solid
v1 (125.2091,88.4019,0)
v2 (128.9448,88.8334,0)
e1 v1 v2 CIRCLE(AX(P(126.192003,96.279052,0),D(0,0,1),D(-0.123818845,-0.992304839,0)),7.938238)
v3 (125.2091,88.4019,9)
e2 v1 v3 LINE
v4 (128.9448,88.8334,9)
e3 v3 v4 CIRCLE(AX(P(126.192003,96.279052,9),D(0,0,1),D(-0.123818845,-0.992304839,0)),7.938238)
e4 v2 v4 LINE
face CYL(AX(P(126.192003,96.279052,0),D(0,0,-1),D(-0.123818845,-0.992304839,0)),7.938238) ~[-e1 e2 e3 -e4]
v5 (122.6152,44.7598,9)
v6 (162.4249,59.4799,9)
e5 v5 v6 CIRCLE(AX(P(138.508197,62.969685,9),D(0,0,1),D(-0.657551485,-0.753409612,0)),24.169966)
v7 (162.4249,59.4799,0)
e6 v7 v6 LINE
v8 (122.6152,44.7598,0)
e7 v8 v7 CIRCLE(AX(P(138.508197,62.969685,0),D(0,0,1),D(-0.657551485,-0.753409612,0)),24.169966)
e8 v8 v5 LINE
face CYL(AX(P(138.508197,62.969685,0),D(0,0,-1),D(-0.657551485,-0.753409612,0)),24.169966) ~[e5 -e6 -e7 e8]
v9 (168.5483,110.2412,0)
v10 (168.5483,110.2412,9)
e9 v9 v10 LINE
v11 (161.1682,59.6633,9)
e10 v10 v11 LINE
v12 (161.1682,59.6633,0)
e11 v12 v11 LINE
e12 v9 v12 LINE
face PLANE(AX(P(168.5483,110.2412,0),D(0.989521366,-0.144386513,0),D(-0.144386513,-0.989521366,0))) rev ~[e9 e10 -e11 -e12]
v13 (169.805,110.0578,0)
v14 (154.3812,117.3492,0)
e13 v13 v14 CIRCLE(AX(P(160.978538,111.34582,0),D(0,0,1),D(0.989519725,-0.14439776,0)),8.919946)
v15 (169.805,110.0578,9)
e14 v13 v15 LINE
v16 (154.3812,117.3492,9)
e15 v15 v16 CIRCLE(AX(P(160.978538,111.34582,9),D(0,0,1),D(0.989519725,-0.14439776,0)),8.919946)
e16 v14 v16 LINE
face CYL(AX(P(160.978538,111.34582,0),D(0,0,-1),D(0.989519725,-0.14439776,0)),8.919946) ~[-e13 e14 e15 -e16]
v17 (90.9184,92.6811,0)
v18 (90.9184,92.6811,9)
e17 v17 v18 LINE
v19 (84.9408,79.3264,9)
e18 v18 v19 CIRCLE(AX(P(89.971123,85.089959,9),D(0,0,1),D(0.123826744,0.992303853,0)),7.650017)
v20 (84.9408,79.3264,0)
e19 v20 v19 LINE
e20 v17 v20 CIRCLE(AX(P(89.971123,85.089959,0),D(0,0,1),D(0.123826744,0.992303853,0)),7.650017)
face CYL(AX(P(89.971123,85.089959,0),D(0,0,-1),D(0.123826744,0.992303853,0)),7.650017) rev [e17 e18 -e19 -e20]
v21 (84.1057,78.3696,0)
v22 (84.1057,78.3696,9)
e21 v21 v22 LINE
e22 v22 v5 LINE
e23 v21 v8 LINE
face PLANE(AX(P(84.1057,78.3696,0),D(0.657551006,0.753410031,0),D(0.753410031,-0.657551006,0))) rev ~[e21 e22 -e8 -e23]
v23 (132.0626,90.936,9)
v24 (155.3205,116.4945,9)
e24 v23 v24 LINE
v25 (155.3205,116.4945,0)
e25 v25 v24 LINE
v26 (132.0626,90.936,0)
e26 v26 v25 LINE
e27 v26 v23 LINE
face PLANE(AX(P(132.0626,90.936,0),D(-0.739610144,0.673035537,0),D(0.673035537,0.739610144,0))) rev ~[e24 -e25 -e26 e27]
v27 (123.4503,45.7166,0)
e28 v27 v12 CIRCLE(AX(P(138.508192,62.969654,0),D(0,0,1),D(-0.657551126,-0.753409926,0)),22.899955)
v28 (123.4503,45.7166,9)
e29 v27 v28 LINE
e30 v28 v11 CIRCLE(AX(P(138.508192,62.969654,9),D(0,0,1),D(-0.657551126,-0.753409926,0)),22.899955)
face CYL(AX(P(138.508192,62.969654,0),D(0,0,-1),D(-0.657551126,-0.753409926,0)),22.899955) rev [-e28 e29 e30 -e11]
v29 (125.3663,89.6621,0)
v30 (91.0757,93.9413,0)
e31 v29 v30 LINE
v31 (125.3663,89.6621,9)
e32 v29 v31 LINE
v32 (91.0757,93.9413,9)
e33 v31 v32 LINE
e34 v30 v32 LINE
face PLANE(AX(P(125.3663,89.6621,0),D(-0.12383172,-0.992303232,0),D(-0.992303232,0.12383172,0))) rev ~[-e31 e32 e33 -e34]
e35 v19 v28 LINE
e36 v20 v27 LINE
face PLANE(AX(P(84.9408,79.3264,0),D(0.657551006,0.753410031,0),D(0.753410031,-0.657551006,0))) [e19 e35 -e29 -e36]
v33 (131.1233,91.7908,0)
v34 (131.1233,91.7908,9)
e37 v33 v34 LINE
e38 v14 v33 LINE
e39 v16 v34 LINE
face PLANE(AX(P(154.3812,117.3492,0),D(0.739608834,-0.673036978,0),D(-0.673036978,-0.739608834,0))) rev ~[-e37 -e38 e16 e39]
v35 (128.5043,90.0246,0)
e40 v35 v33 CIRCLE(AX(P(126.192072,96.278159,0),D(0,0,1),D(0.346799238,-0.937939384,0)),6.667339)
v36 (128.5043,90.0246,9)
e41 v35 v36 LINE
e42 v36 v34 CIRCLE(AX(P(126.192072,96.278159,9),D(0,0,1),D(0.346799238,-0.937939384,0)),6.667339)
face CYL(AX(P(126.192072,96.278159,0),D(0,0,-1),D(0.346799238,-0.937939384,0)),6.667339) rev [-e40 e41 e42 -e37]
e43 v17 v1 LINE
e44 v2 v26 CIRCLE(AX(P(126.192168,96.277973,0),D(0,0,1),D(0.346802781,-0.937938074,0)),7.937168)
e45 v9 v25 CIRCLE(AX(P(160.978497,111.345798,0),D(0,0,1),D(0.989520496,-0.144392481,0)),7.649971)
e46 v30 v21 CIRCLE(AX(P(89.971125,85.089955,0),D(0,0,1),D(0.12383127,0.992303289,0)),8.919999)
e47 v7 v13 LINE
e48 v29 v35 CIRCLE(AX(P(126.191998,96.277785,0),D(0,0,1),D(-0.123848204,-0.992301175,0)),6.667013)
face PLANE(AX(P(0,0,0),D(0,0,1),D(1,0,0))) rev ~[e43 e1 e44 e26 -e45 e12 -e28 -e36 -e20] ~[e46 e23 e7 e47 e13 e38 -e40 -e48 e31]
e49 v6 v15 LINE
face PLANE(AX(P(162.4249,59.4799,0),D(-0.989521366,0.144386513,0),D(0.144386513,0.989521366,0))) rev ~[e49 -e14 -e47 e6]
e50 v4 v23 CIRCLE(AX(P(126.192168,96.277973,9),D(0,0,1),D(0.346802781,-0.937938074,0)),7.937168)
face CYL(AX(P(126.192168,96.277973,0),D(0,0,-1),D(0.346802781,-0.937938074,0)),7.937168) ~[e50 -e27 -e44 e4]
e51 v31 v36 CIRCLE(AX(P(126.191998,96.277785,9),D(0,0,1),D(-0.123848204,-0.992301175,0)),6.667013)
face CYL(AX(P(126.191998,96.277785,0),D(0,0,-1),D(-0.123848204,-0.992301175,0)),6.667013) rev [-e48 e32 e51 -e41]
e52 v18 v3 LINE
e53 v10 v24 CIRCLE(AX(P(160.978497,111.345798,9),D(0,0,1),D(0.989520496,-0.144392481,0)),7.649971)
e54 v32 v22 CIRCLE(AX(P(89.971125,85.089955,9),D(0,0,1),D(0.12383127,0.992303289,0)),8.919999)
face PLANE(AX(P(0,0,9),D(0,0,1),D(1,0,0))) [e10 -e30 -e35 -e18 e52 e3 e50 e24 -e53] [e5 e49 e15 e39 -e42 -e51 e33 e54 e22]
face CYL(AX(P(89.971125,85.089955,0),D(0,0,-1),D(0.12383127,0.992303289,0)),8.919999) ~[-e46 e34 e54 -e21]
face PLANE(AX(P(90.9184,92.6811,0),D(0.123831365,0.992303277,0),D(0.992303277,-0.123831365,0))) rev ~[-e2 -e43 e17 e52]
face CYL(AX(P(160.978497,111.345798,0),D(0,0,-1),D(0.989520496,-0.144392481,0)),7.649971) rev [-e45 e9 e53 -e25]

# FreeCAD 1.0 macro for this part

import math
import FreeCAD as App
import Part
import Sketcher

doc = App.newDocument("Part")
body = doc.addObject("PartDesign::Body", "Body")

sketch1 = doc.addObject("Sketcher::SketchObject", "Sketch")
body.addObject(sketch1)
sketch1.AttachmentSupport = (doc.XY_Plane, [""])
sketch1.MapMode = "FlatFace"
sketch1.addGeometry([
    Part.ArcOfCircle(Part.Circle(App.Vector(90, 85.1, 0), App.Vector(0, 0, 1), 8.9), math.radians(83), math.radians(229)),
    Part.LineSegment(App.Vector(84.1, 78.4, 0), App.Vector(122.6, 44.8, 0)),
    Part.ArcOfCircle(Part.Circle(App.Vector(138.5, 63, 0), App.Vector(0, 0, 1), 24.2), math.radians(-131), math.radians(-8)),
    Part.LineSegment(App.Vector(162.4, 59.5, 0), App.Vector(169.8, 110.1, 0)),
    Part.ArcOfCircle(Part.Circle(App.Vector(161, 111.3, 0), App.Vector(0, 0, 1), 8.9), math.radians(-8), math.radians(138)),
    Part.LineSegment(App.Vector(154.4, 117.3, 0), App.Vector(131.1, 91.8, 0)),
    Part.ArcOfCircle(Part.Circle(App.Vector(126.2, 96.3, 0), App.Vector(0, 0, 1), 6.7), math.radians(-70), math.radians(-42)),
    Part.ArcOfCircle(Part.Circle(App.Vector(126.2, 96.3, 0), App.Vector(0, 0, 1), 6.7), math.radians(-97), math.radians(-70)),
    Part.LineSegment(App.Vector(125.4, 89.7, 0), App.Vector(91.1, 93.9, 0)),
    Part.LineSegment(App.Vector(123.5, 45.7, 0), App.Vector(84.9, 79.3, 0)),
    Part.ArcOfCircle(Part.Circle(App.Vector(90, 85.1, 0), App.Vector(0, 0, 1), 7.6), math.radians(83), math.radians(229)),
    Part.LineSegment(App.Vector(90.9, 92.7, 0), App.Vector(125.2, 88.4, 0)),
    Part.ArcOfCircle(Part.Circle(App.Vector(126.2, 96.3, 0), App.Vector(0, 0, 1), 7.9), math.radians(-97), math.radians(-70)),
    Part.ArcOfCircle(Part.Circle(App.Vector(126.2, 96.3, 0), App.Vector(0, 0, 1), 7.9), math.radians(-70), math.radians(-42)),
    Part.LineSegment(App.Vector(132.1, 90.9, 0), App.Vector(155.3, 116.5, 0)),
    Part.ArcOfCircle(Part.Circle(App.Vector(161, 111.3, 0), App.Vector(0, 0, 1), 7.6), math.radians(-8), math.radians(138)),
    Part.LineSegment(App.Vector(168.5, 110.2, 0), App.Vector(161.2, 59.7, 0)),
    Part.ArcOfCircle(Part.Circle(App.Vector(138.5, 63, 0), App.Vector(0, 0, 1), 22.9), math.radians(-131), math.radians(-8)),
], False)
sketch1.addConstraint([
    Sketcher.Constraint("Tangent", 0, 2, 1, 1),
    Sketcher.Constraint("Tangent", 1, 2, 2, 1),
    Sketcher.Constraint("Tangent", 2, 2, 3, 1),
    Sketcher.Constraint("Tangent", 3, 2, 4, 1),
    Sketcher.Constraint("Tangent", 4, 2, 5, 1),
    Sketcher.Constraint("Tangent", 5, 2, 6, 2),
    Sketcher.Constraint("Tangent", 6, 1, 7, 2),
    Sketcher.Constraint("Tangent", 7, 1, 8, 1),
    Sketcher.Constraint("Tangent", 8, 2, 0, 1),
    Sketcher.Constraint("Tangent", 9, 2, 10, 2),
    Sketcher.Constraint("Tangent", 10, 1, 11, 1),
    Sketcher.Constraint("Tangent", 11, 2, 12, 1),
    Sketcher.Constraint("Tangent", 12, 2, 13, 1),
    Sketcher.Constraint("Tangent", 13, 2, 14, 1),
    Sketcher.Constraint("Tangent", 14, 2, 15, 2),
    Sketcher.Constraint("Tangent", 15, 1, 16, 1),
    Sketcher.Constraint("Tangent", 16, 2, 17, 2),
    Sketcher.Constraint("Tangent", 17, 1, 9, 1),
    Sketcher.Constraint("Coincident", 10, 3, 0, 3),
    Sketcher.Constraint("Coincident", 12, 3, 6, 3),
    Sketcher.Constraint("Coincident", 15, 3, 4, 3),
    Sketcher.Constraint("Coincident", 17, 3, 2, 3),
    Sketcher.Constraint("Equal", 0, 4),
    Sketcher.Constraint("Equal", 6, 7),
    Sketcher.Constraint("Equal", 12, 13),
    Sketcher.Constraint("Equal", 10, 15),
    Sketcher.Constraint("Parallel", 1, 9),
    Sketcher.Constraint("Parallel", 8, 11),
    Sketcher.Constraint("Equal", 1, 3),
    Sketcher.Constraint("Equal", 5, 8),
    Sketcher.Constraint("Radius", 17, 22.9),
    Sketcher.Constraint("Radius", 0, 8.92),
    Sketcher.Constraint("Radius", 2, 24.17),
    Sketcher.Constraint("Radius", 6, 6.6675),
    Sketcher.Constraint("DistanceY", -1, 1, 0, 3, 85.09),
    Sketcher.Constraint("DistanceY", -1, 1, 2, 2, 59.48),
    Sketcher.Constraint("DistanceY", 1, 2, 2, 3, 18.21),
    Sketcher.Constraint("DistanceY", 1, 2, 2, 2, 14.72),
    Sketcher.Constraint("DistanceX", 0, 2, 8, 2, 6.97),
    Sketcher.Constraint("DistanceX", -1, 1, 0, 3, 89.971),
    Sketcher.Constraint("DistanceX", 6, 1, 5, 2, 2.619),
    Sketcher.Constraint("DistanceY", 12, 2, 6, 3, 7.445),
])
pad1 = doc.addObject("PartDesign::Pad", "Pad")
body.addObject(pad1)
pad1.Profile = sketch1
pad1.Length = 9

doc.recompute()
